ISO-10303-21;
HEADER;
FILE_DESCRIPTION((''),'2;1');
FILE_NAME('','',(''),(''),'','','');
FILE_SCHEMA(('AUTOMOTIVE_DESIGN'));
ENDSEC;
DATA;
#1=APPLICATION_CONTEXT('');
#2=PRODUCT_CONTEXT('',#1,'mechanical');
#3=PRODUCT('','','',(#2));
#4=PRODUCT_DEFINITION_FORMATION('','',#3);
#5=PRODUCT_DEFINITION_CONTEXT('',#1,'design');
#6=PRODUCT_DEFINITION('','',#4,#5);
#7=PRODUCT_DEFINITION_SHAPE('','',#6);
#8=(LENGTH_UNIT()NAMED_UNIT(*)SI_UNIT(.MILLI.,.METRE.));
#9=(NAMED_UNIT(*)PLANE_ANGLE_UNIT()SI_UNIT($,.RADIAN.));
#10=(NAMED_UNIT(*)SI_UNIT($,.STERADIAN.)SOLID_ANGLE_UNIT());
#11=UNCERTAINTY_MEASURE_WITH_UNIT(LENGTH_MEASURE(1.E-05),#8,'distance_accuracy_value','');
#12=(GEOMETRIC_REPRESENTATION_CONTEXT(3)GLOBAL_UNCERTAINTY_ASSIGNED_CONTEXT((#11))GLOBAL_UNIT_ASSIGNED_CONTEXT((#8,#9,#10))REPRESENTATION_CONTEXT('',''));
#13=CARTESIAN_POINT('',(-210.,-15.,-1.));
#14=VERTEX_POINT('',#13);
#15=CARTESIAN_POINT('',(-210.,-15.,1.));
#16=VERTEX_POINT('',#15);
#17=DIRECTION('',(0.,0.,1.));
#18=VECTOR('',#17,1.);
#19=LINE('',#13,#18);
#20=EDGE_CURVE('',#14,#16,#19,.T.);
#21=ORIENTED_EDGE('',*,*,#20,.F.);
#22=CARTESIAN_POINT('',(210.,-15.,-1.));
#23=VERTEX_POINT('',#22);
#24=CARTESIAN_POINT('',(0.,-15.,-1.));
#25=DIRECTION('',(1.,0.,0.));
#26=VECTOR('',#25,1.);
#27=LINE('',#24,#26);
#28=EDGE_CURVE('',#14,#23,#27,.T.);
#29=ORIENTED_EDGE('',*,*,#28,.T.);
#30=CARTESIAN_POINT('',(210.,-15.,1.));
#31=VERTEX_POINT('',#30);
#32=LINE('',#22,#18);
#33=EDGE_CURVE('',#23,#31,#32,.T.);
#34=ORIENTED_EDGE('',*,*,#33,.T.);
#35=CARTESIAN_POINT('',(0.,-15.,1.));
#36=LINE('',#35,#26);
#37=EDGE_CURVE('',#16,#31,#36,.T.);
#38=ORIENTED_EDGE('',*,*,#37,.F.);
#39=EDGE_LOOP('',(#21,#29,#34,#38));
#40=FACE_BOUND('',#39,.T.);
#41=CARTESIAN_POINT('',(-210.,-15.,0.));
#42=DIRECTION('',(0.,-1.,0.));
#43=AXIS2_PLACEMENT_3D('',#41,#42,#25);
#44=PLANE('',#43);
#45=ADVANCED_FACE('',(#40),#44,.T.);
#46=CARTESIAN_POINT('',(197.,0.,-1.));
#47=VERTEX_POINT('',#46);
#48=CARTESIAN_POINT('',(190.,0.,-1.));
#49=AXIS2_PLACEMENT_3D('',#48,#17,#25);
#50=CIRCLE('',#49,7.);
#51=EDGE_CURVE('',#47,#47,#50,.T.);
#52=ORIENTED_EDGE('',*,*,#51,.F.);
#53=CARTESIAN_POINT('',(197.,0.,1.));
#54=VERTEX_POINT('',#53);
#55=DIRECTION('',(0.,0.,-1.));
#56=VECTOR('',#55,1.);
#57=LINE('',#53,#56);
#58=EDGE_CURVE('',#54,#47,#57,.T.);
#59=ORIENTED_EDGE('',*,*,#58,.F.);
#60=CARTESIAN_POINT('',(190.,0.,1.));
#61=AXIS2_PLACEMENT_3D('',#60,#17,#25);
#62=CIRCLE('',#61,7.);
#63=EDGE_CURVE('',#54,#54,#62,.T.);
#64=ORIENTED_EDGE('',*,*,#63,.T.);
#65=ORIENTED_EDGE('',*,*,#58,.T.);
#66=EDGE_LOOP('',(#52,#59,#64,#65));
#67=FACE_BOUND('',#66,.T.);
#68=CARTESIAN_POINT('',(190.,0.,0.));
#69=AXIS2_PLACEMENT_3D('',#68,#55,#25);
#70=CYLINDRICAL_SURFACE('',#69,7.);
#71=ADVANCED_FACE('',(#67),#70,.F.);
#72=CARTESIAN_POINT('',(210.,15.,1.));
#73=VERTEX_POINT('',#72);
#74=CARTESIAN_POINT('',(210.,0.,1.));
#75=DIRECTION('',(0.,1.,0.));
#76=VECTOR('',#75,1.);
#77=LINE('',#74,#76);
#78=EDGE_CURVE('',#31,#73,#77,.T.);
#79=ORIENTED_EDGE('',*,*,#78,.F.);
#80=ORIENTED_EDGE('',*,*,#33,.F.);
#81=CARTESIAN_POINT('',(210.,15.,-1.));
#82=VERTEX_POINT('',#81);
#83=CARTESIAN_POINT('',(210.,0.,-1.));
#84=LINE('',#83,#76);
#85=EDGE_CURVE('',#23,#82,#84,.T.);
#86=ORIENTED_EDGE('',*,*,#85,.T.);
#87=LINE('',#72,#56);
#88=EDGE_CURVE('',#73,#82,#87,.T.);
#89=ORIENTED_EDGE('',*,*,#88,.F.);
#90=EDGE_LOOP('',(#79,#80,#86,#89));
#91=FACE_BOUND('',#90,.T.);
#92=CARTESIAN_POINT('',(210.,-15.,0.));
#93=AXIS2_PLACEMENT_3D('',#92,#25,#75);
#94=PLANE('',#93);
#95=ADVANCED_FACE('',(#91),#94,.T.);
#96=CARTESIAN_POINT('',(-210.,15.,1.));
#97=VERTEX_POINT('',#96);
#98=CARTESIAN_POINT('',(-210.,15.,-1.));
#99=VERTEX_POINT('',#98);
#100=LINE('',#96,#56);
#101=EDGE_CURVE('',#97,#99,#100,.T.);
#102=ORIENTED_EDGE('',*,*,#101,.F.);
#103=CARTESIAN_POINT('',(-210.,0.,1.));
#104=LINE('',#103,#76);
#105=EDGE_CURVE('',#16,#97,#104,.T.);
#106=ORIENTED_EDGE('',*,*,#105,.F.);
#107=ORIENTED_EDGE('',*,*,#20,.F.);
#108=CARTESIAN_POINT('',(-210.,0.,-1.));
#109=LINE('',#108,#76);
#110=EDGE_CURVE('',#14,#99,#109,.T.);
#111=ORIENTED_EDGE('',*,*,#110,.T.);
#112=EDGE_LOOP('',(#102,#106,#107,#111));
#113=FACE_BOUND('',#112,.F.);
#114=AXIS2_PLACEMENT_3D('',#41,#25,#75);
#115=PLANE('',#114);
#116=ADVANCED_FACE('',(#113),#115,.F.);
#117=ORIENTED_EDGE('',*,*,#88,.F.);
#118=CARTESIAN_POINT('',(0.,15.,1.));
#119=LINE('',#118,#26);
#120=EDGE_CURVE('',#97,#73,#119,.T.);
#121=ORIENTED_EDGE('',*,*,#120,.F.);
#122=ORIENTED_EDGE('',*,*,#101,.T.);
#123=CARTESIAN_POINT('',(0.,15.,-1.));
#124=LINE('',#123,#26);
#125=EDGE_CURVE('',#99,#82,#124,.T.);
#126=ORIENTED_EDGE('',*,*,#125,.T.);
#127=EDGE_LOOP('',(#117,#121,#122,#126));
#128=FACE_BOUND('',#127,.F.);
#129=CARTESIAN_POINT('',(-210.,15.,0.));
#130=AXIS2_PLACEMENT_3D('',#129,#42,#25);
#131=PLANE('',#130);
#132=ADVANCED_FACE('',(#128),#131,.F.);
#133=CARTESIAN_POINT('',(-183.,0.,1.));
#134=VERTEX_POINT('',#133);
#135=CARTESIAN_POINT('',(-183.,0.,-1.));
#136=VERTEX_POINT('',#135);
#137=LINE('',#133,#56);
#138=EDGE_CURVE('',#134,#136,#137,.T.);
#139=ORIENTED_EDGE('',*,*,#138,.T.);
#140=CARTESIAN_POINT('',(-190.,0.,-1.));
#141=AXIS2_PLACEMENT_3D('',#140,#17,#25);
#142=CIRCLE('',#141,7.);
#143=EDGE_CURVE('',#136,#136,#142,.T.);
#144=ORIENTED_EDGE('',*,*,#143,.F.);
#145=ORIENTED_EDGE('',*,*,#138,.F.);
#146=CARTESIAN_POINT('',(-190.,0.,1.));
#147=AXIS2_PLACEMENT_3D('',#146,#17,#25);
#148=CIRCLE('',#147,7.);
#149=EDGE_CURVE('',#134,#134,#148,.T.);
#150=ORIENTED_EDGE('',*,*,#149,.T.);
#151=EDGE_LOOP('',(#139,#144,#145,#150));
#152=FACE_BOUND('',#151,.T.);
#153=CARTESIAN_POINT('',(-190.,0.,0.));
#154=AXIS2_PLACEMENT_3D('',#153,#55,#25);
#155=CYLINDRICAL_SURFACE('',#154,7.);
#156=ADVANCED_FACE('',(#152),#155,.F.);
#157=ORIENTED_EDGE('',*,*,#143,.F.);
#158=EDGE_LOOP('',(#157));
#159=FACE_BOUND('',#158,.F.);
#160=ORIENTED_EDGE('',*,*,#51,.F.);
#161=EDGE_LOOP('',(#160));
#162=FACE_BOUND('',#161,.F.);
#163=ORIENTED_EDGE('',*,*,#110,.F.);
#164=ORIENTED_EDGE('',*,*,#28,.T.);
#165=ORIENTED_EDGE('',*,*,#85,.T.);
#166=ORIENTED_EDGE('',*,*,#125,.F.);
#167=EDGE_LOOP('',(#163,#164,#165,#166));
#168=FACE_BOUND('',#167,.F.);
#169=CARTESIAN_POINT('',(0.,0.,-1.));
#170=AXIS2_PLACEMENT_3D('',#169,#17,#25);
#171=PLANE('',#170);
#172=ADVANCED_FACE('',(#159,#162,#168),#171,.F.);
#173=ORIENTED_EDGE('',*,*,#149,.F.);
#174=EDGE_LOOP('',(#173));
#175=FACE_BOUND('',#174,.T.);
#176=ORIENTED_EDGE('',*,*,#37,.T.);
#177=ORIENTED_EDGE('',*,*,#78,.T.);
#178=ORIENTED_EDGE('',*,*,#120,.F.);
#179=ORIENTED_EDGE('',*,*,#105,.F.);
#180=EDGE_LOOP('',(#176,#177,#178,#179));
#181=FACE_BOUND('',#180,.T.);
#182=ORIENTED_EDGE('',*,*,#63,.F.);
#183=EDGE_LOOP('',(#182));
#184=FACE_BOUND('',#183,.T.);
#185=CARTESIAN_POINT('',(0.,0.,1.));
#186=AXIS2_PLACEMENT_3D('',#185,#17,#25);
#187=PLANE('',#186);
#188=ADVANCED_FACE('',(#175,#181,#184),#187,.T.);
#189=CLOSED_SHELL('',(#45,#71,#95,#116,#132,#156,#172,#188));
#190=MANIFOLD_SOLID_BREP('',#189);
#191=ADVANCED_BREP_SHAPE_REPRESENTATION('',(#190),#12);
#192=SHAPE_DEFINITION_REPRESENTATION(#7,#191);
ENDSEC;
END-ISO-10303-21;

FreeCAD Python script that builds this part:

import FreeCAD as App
import Part
import Sketcher
Q = App.Units.Quantity


def add_polygon(sketch, points):
    """Adds a closed chain of lines whose ends are joined by coincident constraints."""
    first, n = sketch.GeometryCount, len(points)
    for a, b in zip(points, points[1:] + points[:1]):
        sketch.addGeometry(Part.LineSegment(App.Vector(*a, 0), App.Vector(*b, 0)), False)
    for i in range(n):
        sketch.addConstraint(Sketcher.Constraint("Coincident", first + i, 2, first + (i + 1) % n, 1))

doc = App.newDocument("Part")
body = doc.addObject("PartDesign::Body", "Body")

# Sketch on XY plane
sketch1 = doc.addObject("Sketcher::SketchObject", "Sketch")
body.addObject(sketch1)
sketch1.AttachmentSupport = (doc.XY_Plane, [""])
sketch1.MapMode = "FlatFace"
add_polygon(sketch1, [(-210, 15), (-210, -15), (210, -15), (210, 15)])  # lines 0-3
sketch1.addGeometry(Part.Circle(App.Vector(-190, 0, 0), App.Vector(0, 0, 1), 7), False)  # 4
sketch1.addGeometry(Part.Circle(App.Vector(190, 0, 0), App.Vector(0, 0, 1), 7), False)  # 5
sketch1.addConstraint([
    Sketcher.Constraint("Vertical", 0),
    Sketcher.Constraint("Horizontal", 1),
    Sketcher.Constraint("Vertical", 2),
    Sketcher.Constraint("Horizontal", 3),
    Sketcher.Constraint("Equal", 4, 5),
    Sketcher.Constraint("Symmetric", 4, 3, 5, 3, -1, 1),
    Sketcher.Constraint("Symmetric", 0, 2, 2, 2, -1, 1),
    Sketcher.Constraint("PointOnObject", 4, 3, -1),
    Sketcher.Constraint("Diameter", 4, Q("14 mm")),
    Sketcher.Constraint("DistanceX", 1, 1, 1, 2, Q("420 mm")),
    Sketcher.Constraint("DistanceY", 0, 2, 0, 1, Q("30 mm")),
    Sketcher.Constraint("DistanceX", 4, 3, -1, 1, Q("190 mm")),
])
pad1 = doc.addObject("PartDesign::Pad", "Pad")
body.addObject(pad1)
pad1.Profile = sketch1
pad1.Length = 2
pad1.Midplane = True

doc.recompute()
